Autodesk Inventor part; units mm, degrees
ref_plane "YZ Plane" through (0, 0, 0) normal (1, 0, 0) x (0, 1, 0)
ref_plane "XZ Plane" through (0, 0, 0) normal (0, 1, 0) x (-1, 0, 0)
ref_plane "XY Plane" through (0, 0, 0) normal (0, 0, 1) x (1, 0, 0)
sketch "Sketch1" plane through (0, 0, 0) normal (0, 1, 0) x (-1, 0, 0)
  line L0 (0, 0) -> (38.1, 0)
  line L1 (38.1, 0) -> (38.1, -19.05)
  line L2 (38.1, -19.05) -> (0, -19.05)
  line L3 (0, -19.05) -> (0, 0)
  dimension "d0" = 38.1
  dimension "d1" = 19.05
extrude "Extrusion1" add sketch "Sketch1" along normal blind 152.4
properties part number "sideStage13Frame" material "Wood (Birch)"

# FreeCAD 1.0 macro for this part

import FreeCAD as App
import Part
import Sketcher
Q = App.Units.Quantity

doc = App.newDocument("Part")
body = doc.addObject("PartDesign::Body", "Body")

# Sketch on XZ plane
sketch1 = body.newObject("Sketcher::SketchObject", "Sketch")
sketch1.AttachmentSupport = (doc.getObject("XZ_Plane"), [""])
sketch1.MapMode = "FlatFace"
sketch1.addGeometry([
    Part.LineSegment(App.Vector(-38, 0, 0), App.Vector(0, 0, 0)),
    Part.LineSegment(App.Vector(0, 0, 0), App.Vector(0, -19, 0)),
    Part.LineSegment(App.Vector(0, -19, 0), App.Vector(-38, -19, 0)),
    Part.LineSegment(App.Vector(-38, -19, 0), App.Vector(-38, 0, 0)),
], False)
sketch1.addConstraint([
    Sketcher.Constraint("Coincident", 0, 2, 1, 1),
    Sketcher.Constraint("Coincident", 1, 2, 2, 1),
    Sketcher.Constraint("Coincident", 2, 2, 3, 1),
    Sketcher.Constraint("Coincident", 3, 2, 0, 1),
    Sketcher.Constraint("Horizontal", 0),
    Sketcher.Constraint("Vertical", 1),
    Sketcher.Constraint("Horizontal", 2),
    Sketcher.Constraint("Vertical", 3),
    Sketcher.Constraint("Coincident", 0, 2, -1, 1),
    Sketcher.Constraint("DistanceX", 0, 1, 0, 2, Q("1.5 in")),
    Sketcher.Constraint("DistanceY", 1, 2, 1, 1, Q("0.75 in")),
])
pad1 = body.newObject("PartDesign::Pad", "Pad")
pad1.Profile = sketch1
pad1.Length = Q("6 in")
pad1.Reversed = True

doc.recompute()
